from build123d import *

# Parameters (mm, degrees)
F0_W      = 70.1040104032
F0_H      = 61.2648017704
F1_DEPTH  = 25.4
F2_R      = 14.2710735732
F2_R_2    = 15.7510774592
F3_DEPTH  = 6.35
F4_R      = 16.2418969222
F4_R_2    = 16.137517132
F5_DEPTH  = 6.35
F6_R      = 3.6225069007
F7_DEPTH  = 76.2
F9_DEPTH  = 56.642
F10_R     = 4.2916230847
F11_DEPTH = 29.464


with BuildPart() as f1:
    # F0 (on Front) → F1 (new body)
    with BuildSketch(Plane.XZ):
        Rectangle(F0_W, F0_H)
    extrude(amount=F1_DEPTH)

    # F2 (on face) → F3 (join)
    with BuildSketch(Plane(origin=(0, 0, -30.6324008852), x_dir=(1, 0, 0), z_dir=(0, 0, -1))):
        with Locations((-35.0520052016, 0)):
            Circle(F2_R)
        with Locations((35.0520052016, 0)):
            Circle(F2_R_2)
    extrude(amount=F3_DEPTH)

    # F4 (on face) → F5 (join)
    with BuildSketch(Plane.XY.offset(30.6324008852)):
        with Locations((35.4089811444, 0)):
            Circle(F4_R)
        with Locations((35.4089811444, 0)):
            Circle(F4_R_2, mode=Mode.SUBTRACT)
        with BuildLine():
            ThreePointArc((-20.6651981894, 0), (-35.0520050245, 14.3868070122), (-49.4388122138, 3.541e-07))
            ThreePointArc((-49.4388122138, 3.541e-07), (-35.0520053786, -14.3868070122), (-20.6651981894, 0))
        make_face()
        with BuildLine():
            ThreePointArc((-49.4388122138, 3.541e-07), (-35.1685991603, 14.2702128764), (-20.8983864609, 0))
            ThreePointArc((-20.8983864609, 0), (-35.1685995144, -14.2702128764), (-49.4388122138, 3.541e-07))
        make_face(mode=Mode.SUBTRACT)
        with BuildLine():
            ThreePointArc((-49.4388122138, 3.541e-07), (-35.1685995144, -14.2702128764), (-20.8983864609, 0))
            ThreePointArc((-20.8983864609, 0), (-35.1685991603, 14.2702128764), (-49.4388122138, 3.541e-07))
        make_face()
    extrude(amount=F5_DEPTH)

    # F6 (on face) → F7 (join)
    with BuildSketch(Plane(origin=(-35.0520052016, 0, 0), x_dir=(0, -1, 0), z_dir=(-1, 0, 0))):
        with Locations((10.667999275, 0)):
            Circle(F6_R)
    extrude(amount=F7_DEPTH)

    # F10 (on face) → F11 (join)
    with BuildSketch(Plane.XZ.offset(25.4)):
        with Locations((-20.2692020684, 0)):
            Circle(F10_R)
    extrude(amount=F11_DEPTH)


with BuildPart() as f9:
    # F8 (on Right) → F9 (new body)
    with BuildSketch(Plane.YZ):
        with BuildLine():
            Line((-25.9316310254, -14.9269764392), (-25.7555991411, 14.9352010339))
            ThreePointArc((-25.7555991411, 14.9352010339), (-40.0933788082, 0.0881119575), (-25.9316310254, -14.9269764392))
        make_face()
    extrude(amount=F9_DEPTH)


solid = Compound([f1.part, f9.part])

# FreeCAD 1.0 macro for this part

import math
import FreeCAD as App
import Part
import Sketcher

V = App.Vector
Q = App.Units.Quantity


def add_polygon(sketch, points):
    """Adds a closed chain of lines whose ends are joined by coincident constraints."""
    first, n = sketch.GeometryCount, len(points)
    for a, b in zip(points, points[1:] + points[:1]):
        sketch.addGeometry(Part.LineSegment(App.Vector(*a, 0), App.Vector(*b, 0)), False)
    for i in range(n):
        sketch.addConstraint(Sketcher.Constraint("Coincident", first + i, 2, first + (i + 1) % n, 1))

doc = App.newDocument("Part")
body = doc.addObject("PartDesign::Body", "Body")

sketch1 = doc.addObject("Sketcher::SketchObject", "Sketch")
body.addObject(sketch1)
sketch1.AttachmentSupport = (doc.XZ_Plane, [""])
sketch1.MapMode = "FlatFace"
add_polygon(sketch1, [(-35, 31), (-35, -31), (35, -31), (35, 31)])
sketch1.addConstraint(Sketcher.Constraint("Vertical", 0))
sketch1.addConstraint(Sketcher.Constraint("Horizontal", 1))
sketch1.addConstraint(Sketcher.Constraint("Vertical", 2))
sketch1.addConstraint(Sketcher.Constraint("Horizontal", 3))
sketch1.addConstraint(Sketcher.Constraint("Symmetric", 0, 2, 2, 2, -1, 1))
sketch1.addConstraint(Sketcher.Constraint("DistanceY", 0, 2, 0, 1, Q("2.4120001 in")))
sketch1.addConstraint(Sketcher.Constraint("DistanceX", 1, 1, 1, 2, 70.10401))
pad1 = doc.addObject("PartDesign::Pad", "Pad")
body.addObject(pad1)
pad1.Profile = sketch1
pad1.Length = Q("1 in")

sketch2 = doc.addObject("Sketcher::SketchObject", "Sketch001")
body.addObject(sketch2)
sketch2.AttachmentSupport = (doc.XY_Plane, [""])
sketch2.MapMode = "FlatFace"
sketch2.AttachmentOffset = App.Placement(V(0, 0, -1.206 * 25.4), App.Rotation())
sketch2.addGeometry(Part.Circle(V(-35, 0, 0), V(0, 0, 1), 14), False)
sketch2.addGeometry(Part.Circle(V(35, 0, 0), V(0, 0, 1), 16), False)
sketch2.addConstraint(Sketcher.Constraint("Symmetric", 0, 3, 1, 3, -1, 1))
sketch2.addConstraint(Sketcher.Constraint("PointOnObject", 0, 3, -1))
sketch2.addConstraint(Sketcher.Constraint("Diameter", 0, 28.542147))
sketch2.addConstraint(Sketcher.Constraint("Diameter", 1, 31.502155))
sketch2.addConstraint(Sketcher.Constraint("DistanceX", 0, 3, 1, 3, 70.10401))
pad2 = doc.addObject("PartDesign::Pad", "Pad001")
body.addObject(pad2)
pad2.Profile = sketch2
pad2.Length = Q("0.25 in")
pad2.Reversed = True

sketch3 = doc.addObject("Sketcher::SketchObject", "Sketch002")
body.addObject(sketch3)
sketch3.AttachmentSupport = (doc.XY_Plane, [""])
sketch3.MapMode = "FlatFace"
sketch3.AttachmentOffset = App.Placement(V(0, 0, 1.206 * 25.4), App.Rotation())
sketch3.addGeometry(Part.Circle(V(35, 0, 0), V(0, 0, 1), 16), False)
sketch3.addGeometry(Part.Circle(V(35, 0, 0), V(0, 0, 1), 16), False)
sketch3.addGeometry(Part.Circle(V(-35, 0, 0), V(0, 0, 1), 14), False)
sketch3.addConstraint(Sketcher.Constraint("Coincident", 1, 3, 0, 3))
sketch3.addConstraint(Sketcher.Constraint("PointOnObject", 0, 3, -1))
sketch3.addConstraint(Sketcher.Constraint("PointOnObject", 2, 3, -1))
sketch3.addConstraint(Sketcher.Constraint("Diameter", 0, 32.483794))
sketch3.addConstraint(Sketcher.Constraint("Diameter", 1, 32.275034))
sketch3.addConstraint(Sketcher.Constraint("Diameter", 2, 28.773614))
sketch3.addConstraint(Sketcher.Constraint("DistanceX", -1, 1, 0, 3, 35.408981))
sketch3.addConstraint(Sketcher.Constraint("DistanceX", 2, 3, -1, 1, 35.052005))
pad3 = doc.addObject("PartDesign::Pad", "Pad002")
body.addObject(pad3)
pad3.Profile = sketch3
pad3.Length = Q("0.25 in")

sketch4 = doc.addObject("Sketcher::SketchObject", "Sketch003")
body.addObject(sketch4)
sketch4.AttachmentSupport = (doc.YZ_Plane, [""])
sketch4.MapMode = "FlatFace"
sketch4.AttachmentOffset = App.Placement(V(0, 0, -35.052005), App.Rotation())
sketch4.addGeometry(Part.Circle(V(-10.7, 0, 0), V(0, 0, 1), 3.6), False)
sketch4.addConstraint(Sketcher.Constraint("PointOnObject", 0, 3, -1))
sketch4.addConstraint(Sketcher.Constraint("DistanceX", 0, 3, -1, 1, Q("0.42 in")))
sketch4.addConstraint(Sketcher.Constraint("Diameter", 0, 7.245014))
pad4 = doc.addObject("PartDesign::Pad", "Pad003")
body.addObject(pad4)
pad4.Profile = sketch4
pad4.Length = Q("3 in")
pad4.Reversed = True

sketch5 = doc.addObject("Sketcher::SketchObject", "Sketch004")
body.addObject(sketch5)
sketch5.AttachmentSupport = (doc.XZ_Plane, [""])
sketch5.MapMode = "FlatFace"
sketch5.AttachmentOffset = App.Placement(V(0, 0, 1 * 25.4), App.Rotation())
sketch5.addGeometry(Part.Circle(V(-20.3, 0, 0), V(0, 0, 1), 4.3), False)
sketch5.addConstraint(Sketcher.Constraint("PointOnObject", 0, 3, -1))
sketch5.addConstraint(Sketcher.Constraint("DistanceX", 0, 3, -1, 1, Q("0.7980001 in")))
sketch5.addConstraint(Sketcher.Constraint("Diameter", 0, 8.583246))
pad5 = doc.addObject("PartDesign::Pad", "Pad004")
body.addObject(pad5)
pad5.Profile = sketch5
pad5.Length = Q("1.16 in")
body2 = doc.addObject("PartDesign::Body", "Body001")

sketch6 = doc.addObject("Sketcher::SketchObject", "Sketch005")
body2.addObject(sketch6)
sketch6.AttachmentSupport = (doc.getObject("YZ_Plane001"), [""])
sketch6.MapMode = "FlatFace"
sketch6.addGeometry(Part.LineSegment(V(-26, -15, 0), V(-26, 15, 0)), False)
sketch6.addGeometry(Part.ArcOfCircle(Part.Circle(V(-25, 0, 0), V(0, 0, 1), 15), math.radians(92), math.radians(267)), False)
sketch6.addConstraint(Sketcher.Constraint("Coincident", 0, 1, 1, 2))
sketch6.addConstraint(Sketcher.Constraint("Coincident", 1, 1, 0, 2))
sketch6.addConstraint(Sketcher.Constraint("PointOnObject", 1, 3, -1))
sketch6.addConstraint(Sketcher.Constraint("DistanceX", 1, 3, -1, 1, Q("0.9900001 in")))
sketch6.addConstraint(Sketcher.Constraint("DistanceX", 1, 1, -1, 1, Q("1.014 in")))
sketch6.addConstraint(Sketcher.Constraint("DistanceY", -1, 1, 1, 1, Q("0.588 in")))
sketch6.addConstraint(Sketcher.Constraint("DistanceX", 0, 1, -1, 1, 25.931631))
pad6 = doc.addObject("PartDesign::Pad", "Pad005")
body2.addObject(pad6)
pad6.Profile = sketch6
pad6.Length = Q("2.23 in")

doc.recompute()
